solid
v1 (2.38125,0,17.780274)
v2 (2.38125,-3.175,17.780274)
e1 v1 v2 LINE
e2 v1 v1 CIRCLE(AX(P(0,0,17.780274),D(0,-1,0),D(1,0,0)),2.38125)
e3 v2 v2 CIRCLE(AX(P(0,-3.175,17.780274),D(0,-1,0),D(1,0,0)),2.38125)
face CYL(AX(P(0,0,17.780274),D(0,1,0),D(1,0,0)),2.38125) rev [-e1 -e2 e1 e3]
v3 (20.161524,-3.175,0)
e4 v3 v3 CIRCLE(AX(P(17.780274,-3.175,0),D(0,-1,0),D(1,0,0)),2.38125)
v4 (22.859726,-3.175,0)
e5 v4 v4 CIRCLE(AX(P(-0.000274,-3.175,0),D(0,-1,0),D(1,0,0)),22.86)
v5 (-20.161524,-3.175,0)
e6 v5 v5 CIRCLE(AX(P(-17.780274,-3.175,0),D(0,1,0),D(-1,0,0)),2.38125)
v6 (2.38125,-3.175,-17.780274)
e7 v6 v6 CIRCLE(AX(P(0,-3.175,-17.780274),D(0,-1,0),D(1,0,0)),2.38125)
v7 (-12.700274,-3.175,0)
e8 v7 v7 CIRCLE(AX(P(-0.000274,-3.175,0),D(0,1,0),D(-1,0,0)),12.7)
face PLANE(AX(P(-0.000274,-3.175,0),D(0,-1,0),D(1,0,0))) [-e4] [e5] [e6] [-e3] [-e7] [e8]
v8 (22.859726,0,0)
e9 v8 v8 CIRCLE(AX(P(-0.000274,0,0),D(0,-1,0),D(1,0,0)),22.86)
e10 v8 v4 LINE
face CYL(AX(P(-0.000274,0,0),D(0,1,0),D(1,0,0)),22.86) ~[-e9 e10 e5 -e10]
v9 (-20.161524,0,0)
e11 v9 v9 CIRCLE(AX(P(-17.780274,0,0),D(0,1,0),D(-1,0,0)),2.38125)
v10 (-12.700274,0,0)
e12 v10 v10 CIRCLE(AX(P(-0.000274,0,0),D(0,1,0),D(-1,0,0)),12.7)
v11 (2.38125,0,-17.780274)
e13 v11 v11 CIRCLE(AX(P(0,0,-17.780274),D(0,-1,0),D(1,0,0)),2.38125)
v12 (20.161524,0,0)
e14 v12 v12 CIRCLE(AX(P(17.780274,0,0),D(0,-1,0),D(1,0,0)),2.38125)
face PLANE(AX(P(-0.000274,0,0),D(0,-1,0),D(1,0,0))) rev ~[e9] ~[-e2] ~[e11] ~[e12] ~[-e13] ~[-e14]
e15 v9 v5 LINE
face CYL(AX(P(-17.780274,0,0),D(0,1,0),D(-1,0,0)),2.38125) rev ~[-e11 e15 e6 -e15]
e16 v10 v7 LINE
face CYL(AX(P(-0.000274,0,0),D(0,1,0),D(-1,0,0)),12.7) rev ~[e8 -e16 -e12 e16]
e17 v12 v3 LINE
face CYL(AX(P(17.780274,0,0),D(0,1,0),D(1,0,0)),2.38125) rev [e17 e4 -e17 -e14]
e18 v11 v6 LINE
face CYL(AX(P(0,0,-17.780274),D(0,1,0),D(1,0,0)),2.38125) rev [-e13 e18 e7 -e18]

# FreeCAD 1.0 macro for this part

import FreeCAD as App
import Part
import Sketcher
Q = App.Units.Quantity

doc = App.newDocument("Part")
body = doc.addObject("PartDesign::Body", "Body")

sketch1 = body.newObject("Sketcher::SketchObject", "Sketch")
sketch1.AttachmentSupport = (doc.getObject("XZ_Plane"), [""])
sketch1.MapMode = "FlatFace"
sketch1.addGeometry([
    Part.Circle(App.Vector(-0.000274, 0, 0), App.Vector(0, 0, 1), 22.86),
    Part.Circle(App.Vector(0, -17.780274, 0), App.Vector(0, 0, 1), 2.38125),
    Part.Circle(App.Vector(-17.780274, 0, 0), App.Vector(0, 0, 1), 2.38125),
    Part.Circle(App.Vector(-0.000274, 0, 0), App.Vector(0, 0, 1), 12.7),
    Part.Circle(App.Vector(17.780274, 0, 0), App.Vector(0, 0, 1), 2.38125),
    Part.Circle(App.Vector(0, 17.780274, 0), App.Vector(0, 0, 1), 2.38125),
], False)
sketch1.addConstraint([
    Sketcher.Constraint("Coincident", 3, 3, 0, 3),
    Sketcher.Constraint("Equal", 1, 2),
    Sketcher.Constraint("Equal", 2, 4),
    Sketcher.Constraint("Equal", 4, 5),
    Sketcher.Constraint("Symmetric", 2, 3, 4, 3, -1, 1),
    Sketcher.Constraint("Symmetric", 1, 3, 5, 3, -1, 1),
    Sketcher.Constraint("PointOnObject", 0, 3, -1),
    Sketcher.Constraint("PointOnObject", 1, 3, -2),
    Sketcher.Constraint("PointOnObject", 2, 3, -1),
    Sketcher.Constraint("Diameter", 3, Q("1 in")),
    Sketcher.Constraint("Diameter", 0, Q("1.8 in")),
    Sketcher.Constraint("Diameter", 1, Q("0.1875 in")),
    Sketcher.Constraint("DistanceX", 2, 3, 0, 3, Q("0.7 in")),
    Sketcher.Constraint("DistanceX", 0, 3, -1, 1, Q("0.000274 mm")),
    Sketcher.Constraint("DistanceY", 1, 3, -1, 1, Q("17.780274 mm")),
])
pad1 = body.newObject("PartDesign::Pad", "Pad")
pad1.Profile = sketch1
pad1.Length = Q("0.125 in")

doc.recompute()
